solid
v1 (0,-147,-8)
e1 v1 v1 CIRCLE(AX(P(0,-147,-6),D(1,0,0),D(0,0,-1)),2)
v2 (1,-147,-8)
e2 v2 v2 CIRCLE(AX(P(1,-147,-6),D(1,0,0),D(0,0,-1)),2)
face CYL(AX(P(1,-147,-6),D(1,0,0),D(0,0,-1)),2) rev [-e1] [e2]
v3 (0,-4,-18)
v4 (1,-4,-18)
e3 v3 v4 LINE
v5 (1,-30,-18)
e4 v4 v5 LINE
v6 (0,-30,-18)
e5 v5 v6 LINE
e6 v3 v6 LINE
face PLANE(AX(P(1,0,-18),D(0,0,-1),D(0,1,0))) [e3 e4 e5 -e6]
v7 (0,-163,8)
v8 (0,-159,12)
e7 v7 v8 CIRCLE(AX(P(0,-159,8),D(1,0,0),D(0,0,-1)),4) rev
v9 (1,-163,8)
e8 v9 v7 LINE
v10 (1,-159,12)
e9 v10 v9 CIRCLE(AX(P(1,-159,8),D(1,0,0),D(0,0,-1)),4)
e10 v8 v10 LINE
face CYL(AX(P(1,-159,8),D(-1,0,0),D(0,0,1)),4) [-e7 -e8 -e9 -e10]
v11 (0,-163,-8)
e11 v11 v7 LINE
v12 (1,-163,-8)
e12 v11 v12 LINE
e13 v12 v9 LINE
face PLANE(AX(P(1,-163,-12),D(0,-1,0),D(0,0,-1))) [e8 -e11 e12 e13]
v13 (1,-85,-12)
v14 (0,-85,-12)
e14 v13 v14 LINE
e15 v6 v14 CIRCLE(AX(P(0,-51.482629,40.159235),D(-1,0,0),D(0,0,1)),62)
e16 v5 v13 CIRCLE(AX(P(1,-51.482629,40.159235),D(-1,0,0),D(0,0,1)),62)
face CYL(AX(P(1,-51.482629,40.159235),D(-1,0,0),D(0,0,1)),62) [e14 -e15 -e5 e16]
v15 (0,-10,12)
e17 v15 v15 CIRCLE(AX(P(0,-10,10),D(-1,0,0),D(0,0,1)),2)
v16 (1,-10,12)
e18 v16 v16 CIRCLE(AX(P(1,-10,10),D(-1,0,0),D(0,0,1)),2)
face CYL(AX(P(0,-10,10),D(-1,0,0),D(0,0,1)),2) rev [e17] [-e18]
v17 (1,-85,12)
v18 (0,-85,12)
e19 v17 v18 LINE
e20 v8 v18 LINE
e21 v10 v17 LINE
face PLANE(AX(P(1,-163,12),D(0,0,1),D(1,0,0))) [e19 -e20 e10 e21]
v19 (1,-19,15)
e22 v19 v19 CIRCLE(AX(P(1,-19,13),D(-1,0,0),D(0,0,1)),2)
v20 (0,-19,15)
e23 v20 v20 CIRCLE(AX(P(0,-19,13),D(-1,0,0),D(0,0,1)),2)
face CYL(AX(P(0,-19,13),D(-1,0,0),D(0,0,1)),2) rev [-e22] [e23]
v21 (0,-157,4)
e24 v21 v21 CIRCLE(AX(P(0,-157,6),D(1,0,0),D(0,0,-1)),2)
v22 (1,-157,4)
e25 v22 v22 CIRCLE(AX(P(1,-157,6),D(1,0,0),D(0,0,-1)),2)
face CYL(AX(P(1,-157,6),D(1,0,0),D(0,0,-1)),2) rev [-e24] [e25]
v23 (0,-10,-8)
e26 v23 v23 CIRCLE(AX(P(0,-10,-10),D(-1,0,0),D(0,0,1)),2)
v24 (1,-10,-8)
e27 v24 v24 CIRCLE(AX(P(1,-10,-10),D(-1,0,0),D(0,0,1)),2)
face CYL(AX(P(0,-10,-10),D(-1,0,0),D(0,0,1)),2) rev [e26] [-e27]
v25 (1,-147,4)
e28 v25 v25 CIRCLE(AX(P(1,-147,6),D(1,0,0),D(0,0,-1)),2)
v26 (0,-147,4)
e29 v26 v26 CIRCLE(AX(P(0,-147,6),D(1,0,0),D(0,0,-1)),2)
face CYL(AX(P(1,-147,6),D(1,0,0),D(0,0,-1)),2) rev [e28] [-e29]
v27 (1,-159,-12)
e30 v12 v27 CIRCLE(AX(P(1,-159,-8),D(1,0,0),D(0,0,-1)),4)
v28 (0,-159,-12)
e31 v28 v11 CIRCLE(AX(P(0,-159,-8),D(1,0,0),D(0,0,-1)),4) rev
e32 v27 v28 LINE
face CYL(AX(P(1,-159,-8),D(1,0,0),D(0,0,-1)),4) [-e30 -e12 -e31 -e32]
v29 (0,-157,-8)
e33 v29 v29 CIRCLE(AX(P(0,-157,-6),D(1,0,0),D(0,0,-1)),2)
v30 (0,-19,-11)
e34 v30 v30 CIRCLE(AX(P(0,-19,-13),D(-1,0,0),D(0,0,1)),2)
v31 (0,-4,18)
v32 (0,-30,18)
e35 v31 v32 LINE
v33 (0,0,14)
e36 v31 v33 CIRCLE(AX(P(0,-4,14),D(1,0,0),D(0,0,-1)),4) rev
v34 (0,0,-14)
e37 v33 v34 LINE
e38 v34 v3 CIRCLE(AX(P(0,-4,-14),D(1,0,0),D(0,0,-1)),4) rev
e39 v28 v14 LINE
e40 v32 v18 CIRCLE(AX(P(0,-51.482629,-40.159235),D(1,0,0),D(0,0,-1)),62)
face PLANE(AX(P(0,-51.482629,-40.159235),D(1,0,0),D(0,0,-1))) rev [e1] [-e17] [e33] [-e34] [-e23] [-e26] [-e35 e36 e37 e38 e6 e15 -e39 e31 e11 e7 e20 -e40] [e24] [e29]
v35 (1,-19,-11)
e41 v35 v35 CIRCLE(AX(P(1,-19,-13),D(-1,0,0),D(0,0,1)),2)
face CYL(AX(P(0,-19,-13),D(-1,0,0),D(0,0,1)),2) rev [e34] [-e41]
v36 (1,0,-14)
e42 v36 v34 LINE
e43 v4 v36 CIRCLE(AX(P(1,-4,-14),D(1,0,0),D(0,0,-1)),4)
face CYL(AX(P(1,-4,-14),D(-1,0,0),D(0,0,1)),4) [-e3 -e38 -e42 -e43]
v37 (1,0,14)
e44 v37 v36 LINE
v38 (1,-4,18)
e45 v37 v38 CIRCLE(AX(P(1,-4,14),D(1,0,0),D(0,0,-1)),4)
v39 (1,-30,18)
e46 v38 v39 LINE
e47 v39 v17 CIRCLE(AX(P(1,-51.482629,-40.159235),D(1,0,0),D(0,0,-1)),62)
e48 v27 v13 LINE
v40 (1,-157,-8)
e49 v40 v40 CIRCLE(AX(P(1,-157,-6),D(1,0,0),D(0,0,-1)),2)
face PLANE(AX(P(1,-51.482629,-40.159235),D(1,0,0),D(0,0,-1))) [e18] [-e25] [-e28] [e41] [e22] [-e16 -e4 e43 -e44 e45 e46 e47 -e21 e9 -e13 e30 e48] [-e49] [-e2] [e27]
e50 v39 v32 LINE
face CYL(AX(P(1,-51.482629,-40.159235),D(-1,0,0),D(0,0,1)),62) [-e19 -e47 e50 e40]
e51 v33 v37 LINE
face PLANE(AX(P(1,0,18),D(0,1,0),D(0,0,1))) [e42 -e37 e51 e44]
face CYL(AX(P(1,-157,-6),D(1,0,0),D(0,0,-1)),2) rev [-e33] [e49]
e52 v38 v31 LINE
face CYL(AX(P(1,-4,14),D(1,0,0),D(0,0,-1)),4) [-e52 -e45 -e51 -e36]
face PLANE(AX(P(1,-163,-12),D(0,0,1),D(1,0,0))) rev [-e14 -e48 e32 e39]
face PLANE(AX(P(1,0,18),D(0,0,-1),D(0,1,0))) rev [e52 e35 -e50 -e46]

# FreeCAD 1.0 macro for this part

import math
import FreeCAD as App
import Part
import Sketcher
from FreeCAD import Vector


def edges_at(feature, points):
    """Names of the edges that pass closest to the given points."""
    edges = feature.Shape.Edges
    near = lambda p: min(range(len(edges)), key=lambda i: edges[i].distToShape(Part.Vertex(*p))[0])
    return sorted({f"Edge{near(p) + 1}" for p in points})

doc = App.newDocument("Part")
body = doc.addObject("PartDesign::Body", "Body")

# Sketch on YZ plane
sketch1 = body.newObject("Sketcher::SketchObject", "Sketch")
sketch1.AttachmentSupport = (doc.getObject("YZ_Plane"), [""])
sketch1.MapMode = "FlatFace"
sketch1.addGeometry([
    Part.LineSegment(Vector(-163, -12, 0), Vector(-85, -12, 0)),  # 0
    Part.ArcOfCircle(Part.Circle(Vector(-51, 40, 0), Vector(0, 0, 1), 62), math.radians(-123), math.radians(-70)),  # 1
    Part.LineSegment(Vector(-30, -18, 0), Vector(0, -18, 0)),  # 2
    Part.LineSegment(Vector(0, -18, 0), Vector(0, 18, 0)),  # 3
    Part.LineSegment(Vector(0, 18, 0), Vector(-30, 18, 0)),  # 4
    Part.ArcOfCircle(Part.Circle(Vector(-51, -40, 0), Vector(0, 0, 1), 62), math.radians(70), math.radians(123)),  # 5
    Part.LineSegment(Vector(-85, 12, 0), Vector(-163, 12, 0)),  # 6
    Part.LineSegment(Vector(-163, 12, 0), Vector(-163, -12, 0)),  # 7
], False)
sketch1.addConstraint([
    Sketcher.Constraint("Coincident", 0, 2, 1, 1),
    Sketcher.Constraint("Coincident", 1, 2, 2, 1),
    Sketcher.Constraint("Coincident", 2, 2, 3, 1),
    Sketcher.Constraint("Coincident", 3, 2, 4, 1),
    Sketcher.Constraint("Coincident", 4, 2, 5, 1),
    Sketcher.Constraint("Coincident", 5, 2, 6, 1),
    Sketcher.Constraint("Coincident", 6, 2, 7, 1),
    Sketcher.Constraint("Coincident", 7, 2, 0, 1),
    Sketcher.Constraint("Horizontal", 0),
    Sketcher.Constraint("Horizontal", 2),
    Sketcher.Constraint("Vertical", 3),
    Sketcher.Constraint("Horizontal", 4),
    Sketcher.Constraint("Horizontal", 6),
    Sketcher.Constraint("Vertical", 7),
    Sketcher.Constraint("Equal", 1, 5),
    Sketcher.Constraint("Symmetric", 2, 2, 3, 2, -1, 1),
    Sketcher.Constraint("Symmetric", 1, 3, 5, 3, -1),
    Sketcher.Constraint("Vertical", 0, 2, 5, 2),
    Sketcher.Constraint("Radius", 1, 62.0),
    Sketcher.Constraint("DistanceX", 0, 1, 0, 2, 78.0),
    Sketcher.Constraint("DistanceX", 2, 1, 2, 2, 30.0),
    Sketcher.Constraint("DistanceY", 3, 1, 3, 2, 36.0),
    Sketcher.Constraint("DistanceY", 7, 2, 7, 1, 24.0),
    Sketcher.Constraint("DistanceX", 0, 2, -1, 1, 85.0),
])
pad1 = body.newObject("PartDesign::Pad", "Pad")
pad1.Profile = sketch1
pad1.Length = 1

# Sketch on YZ plane
sketch2 = body.newObject("Sketcher::SketchObject", "Sketch001")
sketch2.AttachmentSupport = (doc.getObject("YZ_Plane"), [""])
sketch2.MapMode = "FlatFace"
sketch2.addGeometry([
    Part.Circle(Vector(-10, 10, 0), Vector(0, 0, 1), 2),
    Part.Circle(Vector(-10, -10, 0), Vector(0, 0, 1), 2),
], False)
sketch2.addConstraint([
    Sketcher.Constraint("Equal", 0, 1),
    Sketcher.Constraint("Symmetric", 0, 3, 1, 3, -1),
    Sketcher.Constraint("Diameter", 0, 4.0),
    Sketcher.Constraint("DistanceX", 0, 3, -1, 1, 10.0),
    Sketcher.Constraint("DistanceY", -1, 1, 0, 3, 10.0),
])
doc.recompute()
hole = body.newObject("PartDesign::Hole", "Hole")
hole.Profile = sketch2
hole.ThreadType = "None"
hole.Diameter = 4
hole.DepthType = "ThroughAll"
hole.Reversed = True

# Sketch on YZ plane
sketch3 = body.newObject("Sketcher::SketchObject", "Sketch002")
sketch3.AttachmentSupport = (doc.getObject("YZ_Plane"), [""])
sketch3.MapMode = "FlatFace"
sketch3.addGeometry([
    Part.Circle(Vector(-19, -13, 0), Vector(0, 0, 1), 2),
    Part.Circle(Vector(-19, 13, 0), Vector(0, 0, 1), 2),
], False)
sketch3.addConstraint([
    Sketcher.Constraint("Equal", 0, 1),
    Sketcher.Constraint("Symmetric", 0, 3, 1, 3, -1),
    Sketcher.Constraint("Diameter", 0, 4.0),
    Sketcher.Constraint("DistanceX", 0, 3, -1, 1, 19.0),
    Sketcher.Constraint("DistanceY", 0, 3, -1, 1, 13.0),
])
doc.recompute()
hole2 = body.newObject("PartDesign::Hole", "Hole001")
hole2.Profile = sketch3
hole2.ThreadType = "None"
hole2.Diameter = 4
hole2.DepthType = "ThroughAll"
hole2.Reversed = True

# Sketch on YZ plane
sketch4 = body.newObject("Sketcher::SketchObject", "Sketch003")
sketch4.AttachmentSupport = (doc.getObject("YZ_Plane"), [""])
sketch4.MapMode = "FlatFace"
sketch4.AttachmentOffset = App.Placement(Vector(0, 0, 1), App.Rotation())
sketch4.addGeometry([
    Part.Circle(Vector(-157, 6, 0), Vector(0, 0, 1), 2),
    Part.Circle(Vector(-157, -6, 0), Vector(0, 0, 1), 2),
], False)
sketch4.addConstraint([
    Sketcher.Constraint("Equal", 0, 1),
    Sketcher.Constraint("Symmetric", 0, 3, 1, 3, -1),
    Sketcher.Constraint("Diameter", 0, 4.0),
    Sketcher.Constraint("DistanceX", 0, 3, -1, 1, 157.0),
    Sketcher.Constraint("DistanceY", -1, 1, 0, 3, 6.0),
])
doc.recompute()
hole3 = body.newObject("PartDesign::Hole", "Hole002")
hole3.Profile = sketch4
hole3.ThreadType = "None"
hole3.Diameter = 4
hole3.DepthType = "ThroughAll"
doc.recompute()

linearpattern = body.newObject("PartDesign::LinearPattern", "LinearPattern")
linearpattern.Originals = [hole3]
linearpattern.Direction = (doc.getObject("Y_Axis"), [""])
linearpattern.Mode = "offset"
linearpattern.Offset = 10
linearpattern.Occurrences = 2
body.Tip = linearpattern
doc.recompute()

fillet = body.newObject("PartDesign::Fillet", "Fillet")
fillet.Base = (linearpattern, edges_at(linearpattern, [
    (0.5, 0, 18),
    (0.5, 0, -18),
    (0.5, -163, -12),
    (0.5, -163, 12),
]))
fillet.Radius = 4

doc.recompute()
